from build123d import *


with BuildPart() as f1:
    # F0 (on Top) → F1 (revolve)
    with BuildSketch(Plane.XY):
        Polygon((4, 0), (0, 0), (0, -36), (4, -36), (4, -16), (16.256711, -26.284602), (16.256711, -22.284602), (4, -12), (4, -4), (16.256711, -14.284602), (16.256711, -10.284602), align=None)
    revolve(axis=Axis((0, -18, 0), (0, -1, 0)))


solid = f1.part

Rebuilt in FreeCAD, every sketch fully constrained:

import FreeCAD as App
import Part
import Sketcher
from FreeCAD import Vector
Q = App.Units.Quantity

doc = App.newDocument("Part")
params = doc.addObject("Spreadsheet::Sheet", "Params")
for row, (alias, value) in enumerate([
    ("sketch1_width", "4 mm"),
    ("sketch1_height", "36 mm"),
    ("sketch1_height2", "20 mm"),
    ("sketch1_length", "16 mm"),
    ("revolution_angle", "360 deg"),
], start=1):
    params.set(f"A{row}", alias)
    params.set(f"B{row}", "=" + value)
    params.setAlias(f"B{row}", alias)

body = doc.addObject("PartDesign::Body", "Body")

# Sketch on XY plane
sketch1 = body.newObject("Sketcher::SketchObject", "Sketch")
sketch1.AttachmentSupport = (doc.getObject("XY_Plane"), [""])
sketch1.MapMode = "FlatFace"
sketch1.addGeometry([
    Part.LineSegment(Vector(4, 0, 0), Vector(0, 0, 0)),  # 0
    Part.LineSegment(Vector(0, 0, 0), Vector(0, -36, 0)),  # 1
    Part.LineSegment(Vector(0, -36, 0), Vector(4, -36, 0)),  # 2
    Part.LineSegment(Vector(4, -36, 0), Vector(4, -16, 0)),  # 3
    Part.LineSegment(Vector(4, -16, 0), Vector(16.3, -26.3, 0)),  # 4
    Part.LineSegment(Vector(16.3, -26.3, 0), Vector(16.3, -22.3, 0)),  # 5
    Part.LineSegment(Vector(16.3, -22.3, 0), Vector(4, -12, 0)),  # 6
    Part.LineSegment(Vector(4, -12, 0), Vector(4, -4, 0)),  # 7
    Part.LineSegment(Vector(4, -4, 0), Vector(16.3, -14.3, 0)),  # 8
    Part.LineSegment(Vector(16.3, -14.3, 0), Vector(16.3, -10.3, 0)),  # 9
    Part.LineSegment(Vector(16.3, -10.3, 0), Vector(4, 0, 0)),  # 10
], False)
sketch1.addConstraint([
    Sketcher.Constraint("Coincident", 0, 2, 1, 1),
    Sketcher.Constraint("Coincident", 1, 2, 2, 1),
    Sketcher.Constraint("Coincident", 2, 2, 3, 1),
    Sketcher.Constraint("Coincident", 3, 2, 4, 1),
    Sketcher.Constraint("Coincident", 4, 2, 5, 1),
    Sketcher.Constraint("Coincident", 5, 2, 6, 1),
    Sketcher.Constraint("Coincident", 6, 2, 7, 1),
    Sketcher.Constraint("Coincident", 7, 2, 8, 1),
    Sketcher.Constraint("Coincident", 8, 2, 9, 1),
    Sketcher.Constraint("Coincident", 9, 2, 10, 1),
    Sketcher.Constraint("Coincident", 10, 2, 0, 1),
    Sketcher.Constraint("Horizontal", 0),
    Sketcher.Constraint("Vertical", 1),
    Sketcher.Constraint("Horizontal", 2),
    Sketcher.Constraint("Vertical", 3),
    Sketcher.Constraint("Vertical", 5),
    Sketcher.Constraint("Vertical", 7),
    Sketcher.Constraint("Vertical", 9),
    Sketcher.Constraint("Coincident", 0, 2, -1, 1),
    Sketcher.Constraint("Parallel", 4, 6),
    Sketcher.Constraint("Parallel", 6, 8),
    Sketcher.Constraint("Parallel", 8, 10),
    Sketcher.Constraint("Vertical", 3, 2, 6, 2),
    Sketcher.Constraint("Vertical", 5, 2, 8, 2),
    Sketcher.Constraint("Vertical", 7, 2, 10, 2),
    Sketcher.Constraint("Equal", 2, 5),
    Sketcher.Constraint("Equal", 5, 9),
    Sketcher.Constraint("DistanceX", 0, 2, 0, 1, 4.0),
    Sketcher.Constraint("DistanceY", 1, 2, 1, 1, 36.0),
    Sketcher.Constraint("DistanceY", 3, 1, 3, 2, 20.0),
    Sketcher.Constraint("Angle", 4, Q("-40.000001 deg")),
    Sketcher.Constraint("Distance", 4, 16.0),
])
sketch1.setExpression("Constraints[27]", "Params.sketch1_width")
sketch1.setExpression("Constraints[28]", "Params.sketch1_height")
sketch1.setExpression("Constraints[29]", "Params.sketch1_height2")
sketch1.setExpression("Constraints[31]", "Params.sketch1_length")
revolution = body.newObject("PartDesign::Revolution", "Revolution")
revolution.Profile = sketch1
revolution.ReferenceAxis = (sketch1, ["V_Axis"])
revolution.setExpression("Angle", "Params.revolution_angle")

doc.recompute()
